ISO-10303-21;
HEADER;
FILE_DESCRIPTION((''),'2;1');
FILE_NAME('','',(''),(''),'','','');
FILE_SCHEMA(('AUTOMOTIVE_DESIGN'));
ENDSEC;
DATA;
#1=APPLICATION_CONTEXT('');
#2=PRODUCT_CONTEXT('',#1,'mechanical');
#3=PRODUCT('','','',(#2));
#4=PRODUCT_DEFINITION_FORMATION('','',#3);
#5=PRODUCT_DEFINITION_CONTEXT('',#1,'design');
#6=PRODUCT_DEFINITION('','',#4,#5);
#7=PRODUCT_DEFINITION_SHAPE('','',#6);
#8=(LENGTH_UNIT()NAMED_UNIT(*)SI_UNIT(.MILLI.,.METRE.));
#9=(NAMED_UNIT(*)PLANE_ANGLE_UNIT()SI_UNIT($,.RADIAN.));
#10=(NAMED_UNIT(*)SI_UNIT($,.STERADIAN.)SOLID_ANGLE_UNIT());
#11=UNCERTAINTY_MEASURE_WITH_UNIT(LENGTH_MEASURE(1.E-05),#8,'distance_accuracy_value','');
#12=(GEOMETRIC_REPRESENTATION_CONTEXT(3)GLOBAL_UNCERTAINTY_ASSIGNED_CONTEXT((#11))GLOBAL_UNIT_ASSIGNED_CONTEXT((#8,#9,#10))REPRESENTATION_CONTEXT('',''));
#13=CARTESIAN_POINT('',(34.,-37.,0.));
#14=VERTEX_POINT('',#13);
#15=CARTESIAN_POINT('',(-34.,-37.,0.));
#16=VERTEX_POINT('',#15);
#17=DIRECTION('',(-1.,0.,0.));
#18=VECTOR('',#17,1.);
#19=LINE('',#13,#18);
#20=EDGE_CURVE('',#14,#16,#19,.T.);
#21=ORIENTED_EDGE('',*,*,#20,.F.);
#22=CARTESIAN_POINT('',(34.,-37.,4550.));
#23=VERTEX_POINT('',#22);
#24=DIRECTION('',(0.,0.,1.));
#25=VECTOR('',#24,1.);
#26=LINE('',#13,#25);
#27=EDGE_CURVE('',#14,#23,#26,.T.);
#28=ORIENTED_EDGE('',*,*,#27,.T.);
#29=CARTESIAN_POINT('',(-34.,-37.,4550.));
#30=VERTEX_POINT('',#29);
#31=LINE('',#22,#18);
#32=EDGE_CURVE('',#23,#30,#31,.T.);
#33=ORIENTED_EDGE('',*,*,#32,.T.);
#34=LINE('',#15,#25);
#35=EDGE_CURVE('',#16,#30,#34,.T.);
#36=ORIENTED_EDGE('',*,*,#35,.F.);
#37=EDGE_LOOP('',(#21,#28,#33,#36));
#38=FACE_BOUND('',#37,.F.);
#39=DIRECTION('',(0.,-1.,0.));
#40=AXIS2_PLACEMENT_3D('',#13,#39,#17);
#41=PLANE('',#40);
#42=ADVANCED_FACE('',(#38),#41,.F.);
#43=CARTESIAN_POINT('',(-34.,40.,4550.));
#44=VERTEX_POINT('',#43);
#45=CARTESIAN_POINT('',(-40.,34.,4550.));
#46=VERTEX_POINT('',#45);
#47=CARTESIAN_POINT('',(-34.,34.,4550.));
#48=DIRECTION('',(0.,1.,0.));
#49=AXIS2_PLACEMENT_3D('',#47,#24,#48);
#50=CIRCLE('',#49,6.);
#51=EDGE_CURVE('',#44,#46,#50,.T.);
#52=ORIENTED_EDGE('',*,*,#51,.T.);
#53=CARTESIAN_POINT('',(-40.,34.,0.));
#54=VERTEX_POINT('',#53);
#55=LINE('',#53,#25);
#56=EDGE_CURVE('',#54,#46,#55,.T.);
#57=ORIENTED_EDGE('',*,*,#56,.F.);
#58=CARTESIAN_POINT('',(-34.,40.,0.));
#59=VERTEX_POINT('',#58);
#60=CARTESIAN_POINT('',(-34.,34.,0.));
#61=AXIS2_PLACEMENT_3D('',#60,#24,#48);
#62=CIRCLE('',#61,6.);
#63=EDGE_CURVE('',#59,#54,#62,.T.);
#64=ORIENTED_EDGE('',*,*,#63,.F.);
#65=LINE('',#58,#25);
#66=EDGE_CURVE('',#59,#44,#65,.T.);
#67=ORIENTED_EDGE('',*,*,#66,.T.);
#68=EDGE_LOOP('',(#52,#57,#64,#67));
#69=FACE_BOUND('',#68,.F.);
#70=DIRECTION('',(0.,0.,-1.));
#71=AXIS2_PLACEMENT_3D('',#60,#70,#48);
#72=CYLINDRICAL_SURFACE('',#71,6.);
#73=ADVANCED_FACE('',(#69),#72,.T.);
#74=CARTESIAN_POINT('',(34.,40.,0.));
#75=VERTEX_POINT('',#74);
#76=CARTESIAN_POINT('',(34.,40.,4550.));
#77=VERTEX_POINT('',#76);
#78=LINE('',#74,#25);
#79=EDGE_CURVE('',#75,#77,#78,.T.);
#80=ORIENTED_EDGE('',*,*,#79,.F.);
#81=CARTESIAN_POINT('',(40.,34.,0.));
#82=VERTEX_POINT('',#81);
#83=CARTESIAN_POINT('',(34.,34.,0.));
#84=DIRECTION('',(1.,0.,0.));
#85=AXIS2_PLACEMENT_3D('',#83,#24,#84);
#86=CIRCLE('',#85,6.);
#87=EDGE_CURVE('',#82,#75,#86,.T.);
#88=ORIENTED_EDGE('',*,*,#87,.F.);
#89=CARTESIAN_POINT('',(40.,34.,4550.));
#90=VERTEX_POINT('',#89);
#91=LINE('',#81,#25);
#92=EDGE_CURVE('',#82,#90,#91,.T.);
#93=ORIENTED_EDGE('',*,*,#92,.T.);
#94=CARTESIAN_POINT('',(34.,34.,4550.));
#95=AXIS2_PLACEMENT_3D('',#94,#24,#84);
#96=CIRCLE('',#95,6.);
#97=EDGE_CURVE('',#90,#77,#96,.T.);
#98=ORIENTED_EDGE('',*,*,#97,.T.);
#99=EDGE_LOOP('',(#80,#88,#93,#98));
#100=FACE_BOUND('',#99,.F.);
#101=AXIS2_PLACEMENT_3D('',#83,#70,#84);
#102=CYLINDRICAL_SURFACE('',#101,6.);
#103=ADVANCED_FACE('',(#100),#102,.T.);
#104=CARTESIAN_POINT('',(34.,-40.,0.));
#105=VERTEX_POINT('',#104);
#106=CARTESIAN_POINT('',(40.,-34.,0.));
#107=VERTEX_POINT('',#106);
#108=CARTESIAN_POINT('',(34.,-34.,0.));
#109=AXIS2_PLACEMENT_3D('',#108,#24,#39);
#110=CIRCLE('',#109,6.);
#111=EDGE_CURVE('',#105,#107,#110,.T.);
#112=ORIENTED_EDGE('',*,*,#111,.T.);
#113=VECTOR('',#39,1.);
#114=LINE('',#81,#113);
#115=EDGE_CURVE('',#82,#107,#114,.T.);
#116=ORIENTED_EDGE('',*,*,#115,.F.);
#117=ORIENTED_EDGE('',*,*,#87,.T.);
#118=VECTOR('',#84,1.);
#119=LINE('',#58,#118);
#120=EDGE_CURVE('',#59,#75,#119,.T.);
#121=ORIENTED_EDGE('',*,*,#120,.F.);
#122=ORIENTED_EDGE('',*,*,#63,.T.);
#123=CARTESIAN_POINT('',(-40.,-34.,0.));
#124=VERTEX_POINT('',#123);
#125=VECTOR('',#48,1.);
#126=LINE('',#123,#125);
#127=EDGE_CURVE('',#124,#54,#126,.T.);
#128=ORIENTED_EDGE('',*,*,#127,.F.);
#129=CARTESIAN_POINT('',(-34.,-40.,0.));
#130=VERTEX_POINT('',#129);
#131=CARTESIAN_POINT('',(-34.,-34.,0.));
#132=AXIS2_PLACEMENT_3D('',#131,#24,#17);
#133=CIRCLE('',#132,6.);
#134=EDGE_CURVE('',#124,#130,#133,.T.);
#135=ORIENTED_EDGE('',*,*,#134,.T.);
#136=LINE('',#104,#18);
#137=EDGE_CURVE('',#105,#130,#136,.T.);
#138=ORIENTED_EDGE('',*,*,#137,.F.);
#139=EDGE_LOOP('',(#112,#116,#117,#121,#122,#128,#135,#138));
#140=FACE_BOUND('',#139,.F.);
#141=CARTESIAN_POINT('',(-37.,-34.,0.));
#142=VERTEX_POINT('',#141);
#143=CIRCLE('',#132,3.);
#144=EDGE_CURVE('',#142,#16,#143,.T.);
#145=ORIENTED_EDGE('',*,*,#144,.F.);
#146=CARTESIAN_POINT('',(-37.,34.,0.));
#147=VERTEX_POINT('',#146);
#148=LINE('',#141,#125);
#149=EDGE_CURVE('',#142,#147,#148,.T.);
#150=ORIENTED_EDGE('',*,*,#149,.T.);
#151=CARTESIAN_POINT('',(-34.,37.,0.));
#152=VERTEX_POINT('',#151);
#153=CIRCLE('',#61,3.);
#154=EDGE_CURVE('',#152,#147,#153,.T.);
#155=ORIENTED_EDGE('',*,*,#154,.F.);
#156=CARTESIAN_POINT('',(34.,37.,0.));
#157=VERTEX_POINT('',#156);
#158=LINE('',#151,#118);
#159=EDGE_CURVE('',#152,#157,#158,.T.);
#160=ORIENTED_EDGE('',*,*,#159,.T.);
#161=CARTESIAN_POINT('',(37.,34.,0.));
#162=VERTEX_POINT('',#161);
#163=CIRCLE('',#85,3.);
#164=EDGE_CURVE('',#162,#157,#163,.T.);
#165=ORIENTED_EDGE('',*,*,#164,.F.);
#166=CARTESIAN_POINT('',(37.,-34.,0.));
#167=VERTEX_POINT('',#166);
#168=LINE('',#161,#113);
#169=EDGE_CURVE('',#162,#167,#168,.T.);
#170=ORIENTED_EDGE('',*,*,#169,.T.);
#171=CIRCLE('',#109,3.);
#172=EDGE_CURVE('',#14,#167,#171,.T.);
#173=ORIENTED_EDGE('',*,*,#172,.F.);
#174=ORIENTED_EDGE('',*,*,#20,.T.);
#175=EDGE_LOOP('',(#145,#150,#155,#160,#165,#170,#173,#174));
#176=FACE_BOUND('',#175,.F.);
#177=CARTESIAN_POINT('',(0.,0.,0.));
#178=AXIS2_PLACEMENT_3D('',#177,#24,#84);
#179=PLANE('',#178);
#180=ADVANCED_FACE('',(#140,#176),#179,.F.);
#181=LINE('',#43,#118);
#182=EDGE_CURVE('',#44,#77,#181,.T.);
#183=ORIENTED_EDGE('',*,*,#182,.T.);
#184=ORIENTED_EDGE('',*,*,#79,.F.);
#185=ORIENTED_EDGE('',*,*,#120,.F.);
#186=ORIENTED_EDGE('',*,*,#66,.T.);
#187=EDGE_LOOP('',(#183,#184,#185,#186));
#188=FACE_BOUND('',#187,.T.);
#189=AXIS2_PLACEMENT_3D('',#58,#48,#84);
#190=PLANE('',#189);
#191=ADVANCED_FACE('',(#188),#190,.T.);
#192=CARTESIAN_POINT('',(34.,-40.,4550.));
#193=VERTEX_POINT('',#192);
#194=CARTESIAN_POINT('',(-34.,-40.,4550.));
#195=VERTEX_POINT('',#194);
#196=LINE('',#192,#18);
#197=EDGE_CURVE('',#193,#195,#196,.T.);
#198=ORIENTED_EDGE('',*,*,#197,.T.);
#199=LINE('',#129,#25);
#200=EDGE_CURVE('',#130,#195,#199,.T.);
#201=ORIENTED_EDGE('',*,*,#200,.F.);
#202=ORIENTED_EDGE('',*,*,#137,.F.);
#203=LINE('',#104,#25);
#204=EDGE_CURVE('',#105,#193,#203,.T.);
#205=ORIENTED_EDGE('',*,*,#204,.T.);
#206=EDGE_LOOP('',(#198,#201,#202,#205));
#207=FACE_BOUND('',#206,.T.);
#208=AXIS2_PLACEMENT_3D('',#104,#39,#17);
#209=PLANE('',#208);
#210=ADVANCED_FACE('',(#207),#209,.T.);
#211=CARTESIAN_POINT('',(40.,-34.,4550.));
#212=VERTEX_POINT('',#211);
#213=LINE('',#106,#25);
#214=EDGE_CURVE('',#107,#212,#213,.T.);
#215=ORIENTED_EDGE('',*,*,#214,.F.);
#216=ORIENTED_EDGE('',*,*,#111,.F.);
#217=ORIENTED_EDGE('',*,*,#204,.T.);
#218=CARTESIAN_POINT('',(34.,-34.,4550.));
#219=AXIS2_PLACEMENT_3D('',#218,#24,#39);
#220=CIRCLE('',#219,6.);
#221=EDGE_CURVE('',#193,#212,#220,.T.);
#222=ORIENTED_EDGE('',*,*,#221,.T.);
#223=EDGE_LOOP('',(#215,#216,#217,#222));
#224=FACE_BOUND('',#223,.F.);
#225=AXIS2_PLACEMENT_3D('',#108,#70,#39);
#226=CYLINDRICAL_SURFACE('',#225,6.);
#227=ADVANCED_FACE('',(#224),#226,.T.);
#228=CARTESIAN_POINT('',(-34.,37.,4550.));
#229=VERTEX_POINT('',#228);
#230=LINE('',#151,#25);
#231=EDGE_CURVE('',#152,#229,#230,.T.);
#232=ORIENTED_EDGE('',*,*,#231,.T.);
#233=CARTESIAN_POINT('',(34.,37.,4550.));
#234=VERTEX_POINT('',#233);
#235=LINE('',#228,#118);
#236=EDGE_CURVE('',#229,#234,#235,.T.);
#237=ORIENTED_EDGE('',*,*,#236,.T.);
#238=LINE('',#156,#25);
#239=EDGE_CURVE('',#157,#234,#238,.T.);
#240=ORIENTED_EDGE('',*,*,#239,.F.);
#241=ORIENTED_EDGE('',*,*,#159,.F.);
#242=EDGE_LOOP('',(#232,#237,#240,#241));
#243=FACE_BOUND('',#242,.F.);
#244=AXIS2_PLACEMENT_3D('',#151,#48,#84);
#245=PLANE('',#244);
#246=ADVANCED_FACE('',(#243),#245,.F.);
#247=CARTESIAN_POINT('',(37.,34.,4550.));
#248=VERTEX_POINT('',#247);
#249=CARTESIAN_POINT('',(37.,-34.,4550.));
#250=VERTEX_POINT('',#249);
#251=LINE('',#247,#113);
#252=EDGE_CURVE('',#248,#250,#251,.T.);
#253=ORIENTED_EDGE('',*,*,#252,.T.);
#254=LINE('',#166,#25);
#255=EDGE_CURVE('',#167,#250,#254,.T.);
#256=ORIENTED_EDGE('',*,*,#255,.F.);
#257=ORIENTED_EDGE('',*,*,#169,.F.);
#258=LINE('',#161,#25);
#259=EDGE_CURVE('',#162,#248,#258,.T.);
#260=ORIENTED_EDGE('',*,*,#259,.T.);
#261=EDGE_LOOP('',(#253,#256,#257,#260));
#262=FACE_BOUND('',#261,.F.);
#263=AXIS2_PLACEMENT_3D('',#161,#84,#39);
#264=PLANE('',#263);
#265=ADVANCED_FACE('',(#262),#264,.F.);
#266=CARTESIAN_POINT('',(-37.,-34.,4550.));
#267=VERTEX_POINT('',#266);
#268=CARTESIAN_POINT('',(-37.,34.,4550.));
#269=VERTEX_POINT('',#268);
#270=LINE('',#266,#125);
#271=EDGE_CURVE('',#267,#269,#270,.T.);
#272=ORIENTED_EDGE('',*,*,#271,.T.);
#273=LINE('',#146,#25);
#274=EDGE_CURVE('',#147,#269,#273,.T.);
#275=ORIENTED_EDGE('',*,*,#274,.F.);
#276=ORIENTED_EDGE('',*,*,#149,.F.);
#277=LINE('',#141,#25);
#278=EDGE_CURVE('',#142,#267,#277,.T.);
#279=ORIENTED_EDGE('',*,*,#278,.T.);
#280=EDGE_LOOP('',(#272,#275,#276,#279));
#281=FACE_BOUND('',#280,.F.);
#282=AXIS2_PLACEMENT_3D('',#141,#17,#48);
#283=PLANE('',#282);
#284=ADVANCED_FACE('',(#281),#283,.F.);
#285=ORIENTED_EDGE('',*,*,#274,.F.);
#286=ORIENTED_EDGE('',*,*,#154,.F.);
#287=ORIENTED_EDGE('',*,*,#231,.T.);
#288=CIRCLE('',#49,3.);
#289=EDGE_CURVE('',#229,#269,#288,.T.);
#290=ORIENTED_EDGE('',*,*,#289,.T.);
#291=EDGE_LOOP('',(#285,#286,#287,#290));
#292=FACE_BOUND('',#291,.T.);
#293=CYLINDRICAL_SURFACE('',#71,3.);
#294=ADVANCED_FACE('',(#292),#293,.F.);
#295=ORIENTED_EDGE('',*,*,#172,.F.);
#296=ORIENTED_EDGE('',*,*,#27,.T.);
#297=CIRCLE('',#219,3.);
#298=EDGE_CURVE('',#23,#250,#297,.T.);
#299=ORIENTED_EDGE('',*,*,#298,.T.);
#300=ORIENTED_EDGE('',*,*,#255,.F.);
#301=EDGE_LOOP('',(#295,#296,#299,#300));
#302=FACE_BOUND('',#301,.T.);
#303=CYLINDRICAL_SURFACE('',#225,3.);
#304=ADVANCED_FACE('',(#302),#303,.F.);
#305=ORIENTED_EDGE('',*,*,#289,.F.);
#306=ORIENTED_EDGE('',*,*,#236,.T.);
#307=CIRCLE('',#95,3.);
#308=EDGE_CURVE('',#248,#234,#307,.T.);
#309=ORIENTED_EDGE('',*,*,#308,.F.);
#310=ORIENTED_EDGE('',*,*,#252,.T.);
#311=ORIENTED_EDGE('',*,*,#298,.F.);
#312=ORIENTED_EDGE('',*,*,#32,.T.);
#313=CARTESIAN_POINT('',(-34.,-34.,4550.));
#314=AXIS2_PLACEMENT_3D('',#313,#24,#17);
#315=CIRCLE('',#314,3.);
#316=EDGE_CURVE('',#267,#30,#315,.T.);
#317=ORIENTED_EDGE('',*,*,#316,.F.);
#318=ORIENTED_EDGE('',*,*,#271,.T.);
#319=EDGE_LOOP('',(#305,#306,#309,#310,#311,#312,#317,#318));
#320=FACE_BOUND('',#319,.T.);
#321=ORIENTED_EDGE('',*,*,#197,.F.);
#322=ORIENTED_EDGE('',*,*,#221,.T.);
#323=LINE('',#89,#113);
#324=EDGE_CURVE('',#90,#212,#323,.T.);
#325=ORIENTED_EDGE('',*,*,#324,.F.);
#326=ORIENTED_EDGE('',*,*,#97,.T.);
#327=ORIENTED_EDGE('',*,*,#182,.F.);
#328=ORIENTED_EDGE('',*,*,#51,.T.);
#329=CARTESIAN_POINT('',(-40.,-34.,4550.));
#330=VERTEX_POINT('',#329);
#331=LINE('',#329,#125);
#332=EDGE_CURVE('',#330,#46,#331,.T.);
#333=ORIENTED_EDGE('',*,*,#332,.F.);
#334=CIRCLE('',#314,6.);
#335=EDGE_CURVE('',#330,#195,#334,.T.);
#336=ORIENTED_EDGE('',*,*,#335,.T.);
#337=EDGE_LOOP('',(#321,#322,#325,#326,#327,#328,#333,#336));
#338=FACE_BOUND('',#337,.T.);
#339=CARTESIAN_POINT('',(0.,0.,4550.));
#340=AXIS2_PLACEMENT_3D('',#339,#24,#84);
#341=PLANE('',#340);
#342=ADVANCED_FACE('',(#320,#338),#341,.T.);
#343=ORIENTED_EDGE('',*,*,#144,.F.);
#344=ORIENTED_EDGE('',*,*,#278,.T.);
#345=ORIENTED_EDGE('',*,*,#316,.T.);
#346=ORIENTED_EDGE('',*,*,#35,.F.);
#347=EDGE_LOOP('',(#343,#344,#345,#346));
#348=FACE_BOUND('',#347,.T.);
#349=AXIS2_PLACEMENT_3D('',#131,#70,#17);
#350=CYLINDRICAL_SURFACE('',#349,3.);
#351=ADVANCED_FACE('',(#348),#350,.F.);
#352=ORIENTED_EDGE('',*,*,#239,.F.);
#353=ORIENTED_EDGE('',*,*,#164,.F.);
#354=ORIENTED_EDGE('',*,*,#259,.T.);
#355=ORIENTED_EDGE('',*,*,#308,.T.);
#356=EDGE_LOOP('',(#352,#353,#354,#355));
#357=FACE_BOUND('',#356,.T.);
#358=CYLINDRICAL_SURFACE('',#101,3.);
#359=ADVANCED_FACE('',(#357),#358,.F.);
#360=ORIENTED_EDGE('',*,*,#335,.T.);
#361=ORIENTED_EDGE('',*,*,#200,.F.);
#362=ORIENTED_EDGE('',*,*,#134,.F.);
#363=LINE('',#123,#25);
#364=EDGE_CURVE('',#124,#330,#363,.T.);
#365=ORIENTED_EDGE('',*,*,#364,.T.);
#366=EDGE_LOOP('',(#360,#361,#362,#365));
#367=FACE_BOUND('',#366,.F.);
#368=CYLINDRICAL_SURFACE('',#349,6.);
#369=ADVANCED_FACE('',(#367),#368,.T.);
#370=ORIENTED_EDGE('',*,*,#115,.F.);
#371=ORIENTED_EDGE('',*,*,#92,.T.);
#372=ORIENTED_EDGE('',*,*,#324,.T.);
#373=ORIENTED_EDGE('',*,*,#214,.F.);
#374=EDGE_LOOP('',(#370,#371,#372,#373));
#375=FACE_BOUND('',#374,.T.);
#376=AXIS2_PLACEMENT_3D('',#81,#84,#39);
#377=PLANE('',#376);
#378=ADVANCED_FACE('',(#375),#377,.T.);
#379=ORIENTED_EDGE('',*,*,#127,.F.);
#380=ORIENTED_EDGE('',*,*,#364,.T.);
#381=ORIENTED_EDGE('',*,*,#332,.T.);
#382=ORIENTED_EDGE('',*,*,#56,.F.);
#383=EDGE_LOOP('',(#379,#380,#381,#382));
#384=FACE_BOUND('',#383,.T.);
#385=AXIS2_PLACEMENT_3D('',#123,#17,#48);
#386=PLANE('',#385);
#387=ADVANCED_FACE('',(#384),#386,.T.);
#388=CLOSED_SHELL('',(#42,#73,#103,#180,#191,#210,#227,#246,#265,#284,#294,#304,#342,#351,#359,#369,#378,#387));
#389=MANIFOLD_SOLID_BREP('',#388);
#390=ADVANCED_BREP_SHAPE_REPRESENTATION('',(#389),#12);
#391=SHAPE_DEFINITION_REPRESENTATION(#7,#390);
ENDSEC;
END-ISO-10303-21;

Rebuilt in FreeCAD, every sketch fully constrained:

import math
import FreeCAD as App
import Part
import Sketcher

V = App.Vector
Q = App.Units.Quantity

doc = App.newDocument("Part")
params = doc.addObject("Spreadsheet::Sheet", "Params")
for row, (alias, value) in enumerate([
    ("sketch1_radius", "6 mm"),
    ("sketch1_radius2", "3 mm"),
    ("pad1_length", "4550 mm"),
], start=1):
    params.set(f"A{row}", alias)
    params.set(f"B{row}", "=" + value)
    params.setAlias(f"B{row}", alias)

body = doc.addObject("PartDesign::Body", "Body")

sketch1 = body.newObject("Sketcher::SketchObject", "Sketch")
sketch1.AttachmentSupport = (doc.getObject("XY_Plane"), [""])
sketch1.MapMode = "FlatFace"
sketch1.addGeometry(Part.LineSegment(V(-40, 34, 0), V(-40, -34, 0)), False)
sketch1.addGeometry(Part.ArcOfCircle(Part.Circle(V(-34, -34, 0), V(0, 0, 1), 6), math.radians(180), math.radians(270)), False)
sketch1.addGeometry(Part.LineSegment(V(-34, -40, 0), V(34, -40, 0)), False)
sketch1.addGeometry(Part.ArcOfCircle(Part.Circle(V(34, -34, 0), V(0, 0, 1), 6), math.radians(-90), math.radians(0)), False)
sketch1.addGeometry(Part.LineSegment(V(40, -34, 0), V(40, 34, 0)), False)
sketch1.addGeometry(Part.ArcOfCircle(Part.Circle(V(34, 34, 0), V(0, 0, 1), 6), math.radians(0), math.radians(90)), False)
sketch1.addGeometry(Part.LineSegment(V(34, 40, 0), V(-34, 40, 0)), False)
sketch1.addGeometry(Part.ArcOfCircle(Part.Circle(V(-34, 34, 0), V(0, 0, 1), 6), math.radians(90), math.radians(180)), False)
sketch1.addGeometry(Part.ArcOfCircle(Part.Circle(V(-34, 34, 0), V(0, 0, 1), 3), math.radians(90), math.radians(180)), False)
sketch1.addGeometry(Part.LineSegment(V(-34, 37, 0), V(34, 37, 0)), False)
sketch1.addGeometry(Part.ArcOfCircle(Part.Circle(V(34, 34, 0), V(0, 0, 1), 3), math.radians(0), math.radians(90)), False)
sketch1.addGeometry(Part.LineSegment(V(37, 34, 0), V(37, -34, 0)), False)
sketch1.addGeometry(Part.ArcOfCircle(Part.Circle(V(34, -34, 0), V(0, 0, 1), 3), math.radians(-90), math.radians(0)), False)
sketch1.addGeometry(Part.LineSegment(V(34, -37, 0), V(-34, -37, 0)), False)
sketch1.addGeometry(Part.ArcOfCircle(Part.Circle(V(-34, -34, 0), V(0, 0, 1), 3), math.radians(180), math.radians(270)), False)
sketch1.addGeometry(Part.LineSegment(V(-37, -34, 0), V(-37, 34, 0)), False)
sketch1.addConstraint(Sketcher.Constraint("Tangent", 0, 2, 1, 1))
sketch1.addConstraint(Sketcher.Constraint("Tangent", 1, 2, 2, 1))
sketch1.addConstraint(Sketcher.Constraint("Tangent", 2, 2, 3, 1))
sketch1.addConstraint(Sketcher.Constraint("Tangent", 3, 2, 4, 1))
sketch1.addConstraint(Sketcher.Constraint("Tangent", 4, 2, 5, 1))
sketch1.addConstraint(Sketcher.Constraint("Tangent", 5, 2, 6, 1))
sketch1.addConstraint(Sketcher.Constraint("Tangent", 6, 2, 7, 1))
sketch1.addConstraint(Sketcher.Constraint("Tangent", 7, 2, 0, 1))
sketch1.addConstraint(Sketcher.Constraint("Tangent", 8, 1, 9, 1))
sketch1.addConstraint(Sketcher.Constraint("Tangent", 9, 2, 10, 2))
sketch1.addConstraint(Sketcher.Constraint("Tangent", 10, 1, 11, 1))
sketch1.addConstraint(Sketcher.Constraint("Tangent", 11, 2, 12, 2))
sketch1.addConstraint(Sketcher.Constraint("Tangent", 12, 1, 13, 1))
sketch1.addConstraint(Sketcher.Constraint("Tangent", 13, 2, 14, 2))
sketch1.addConstraint(Sketcher.Constraint("Tangent", 14, 1, 15, 1))
sketch1.addConstraint(Sketcher.Constraint("Tangent", 15, 2, 8, 2))
sketch1.addConstraint(Sketcher.Constraint("Vertical", 0))
sketch1.addConstraint(Sketcher.Constraint("Horizontal", 2))
sketch1.addConstraint(Sketcher.Constraint("Vertical", 4))
sketch1.addConstraint(Sketcher.Constraint("Horizontal", 6))
sketch1.addConstraint(Sketcher.Constraint("Horizontal", 9))
sketch1.addConstraint(Sketcher.Constraint("Vertical", 11))
sketch1.addConstraint(Sketcher.Constraint("Horizontal", 13))
sketch1.addConstraint(Sketcher.Constraint("Vertical", 15))
sketch1.addConstraint(Sketcher.Constraint("Coincident", 8, 3, 7, 3))
sketch1.addConstraint(Sketcher.Constraint("Coincident", 10, 3, 5, 3))
sketch1.addConstraint(Sketcher.Constraint("Coincident", 12, 3, 3, 3))
sketch1.addConstraint(Sketcher.Constraint("Equal", 1, 3))
sketch1.addConstraint(Sketcher.Constraint("Equal", 3, 5))
sketch1.addConstraint(Sketcher.Constraint("Equal", 5, 7))
sketch1.addConstraint(Sketcher.Constraint("Equal", 12, 14))
sketch1.addConstraint(Sketcher.Constraint("Symmetric", 1, 3, 5, 3, -1, 1))
sketch1.addConstraint(Sketcher.Constraint("Equal", 13, 0))
sketch1.addConstraint(Sketcher.Constraint("Radius", 1, Q("6 mm")))
sketch1.addConstraint(Sketcher.Constraint("Radius", 8, Q("3 mm")))
sketch1.addConstraint(Sketcher.Constraint("DistanceX", 0, 2, -1, 1, Q("40 mm")))
sketch1.setExpression("Constraints[33]", "Params.sketch1_radius")
sketch1.setExpression("Constraints[34]", "Params.sketch1_radius2")
pad1 = body.newObject("PartDesign::Pad", "Pad")
pad1.Profile = sketch1
pad1.setExpression("Length", "Params.pad1_length")

doc.recompute()
